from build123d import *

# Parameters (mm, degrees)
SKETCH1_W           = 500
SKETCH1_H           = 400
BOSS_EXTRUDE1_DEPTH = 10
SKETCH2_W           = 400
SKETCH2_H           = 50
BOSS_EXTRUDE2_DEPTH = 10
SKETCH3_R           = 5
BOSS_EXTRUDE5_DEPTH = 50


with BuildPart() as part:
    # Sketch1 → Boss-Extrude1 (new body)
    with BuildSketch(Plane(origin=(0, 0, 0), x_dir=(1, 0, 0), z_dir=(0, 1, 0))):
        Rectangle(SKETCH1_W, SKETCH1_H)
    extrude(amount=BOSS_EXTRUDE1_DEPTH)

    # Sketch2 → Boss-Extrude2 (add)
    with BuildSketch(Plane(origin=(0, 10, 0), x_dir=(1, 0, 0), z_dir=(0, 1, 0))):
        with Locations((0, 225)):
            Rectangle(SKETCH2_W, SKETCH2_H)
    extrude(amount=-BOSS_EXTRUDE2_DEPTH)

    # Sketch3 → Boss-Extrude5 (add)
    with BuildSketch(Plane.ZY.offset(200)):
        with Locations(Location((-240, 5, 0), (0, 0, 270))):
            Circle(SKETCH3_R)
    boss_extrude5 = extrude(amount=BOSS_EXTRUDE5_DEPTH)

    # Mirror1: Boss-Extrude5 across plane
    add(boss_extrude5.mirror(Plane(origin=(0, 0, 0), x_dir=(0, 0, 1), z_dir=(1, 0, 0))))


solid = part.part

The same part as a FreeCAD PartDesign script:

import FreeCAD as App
import Part
import Sketcher

V = App.Vector

doc = App.newDocument("Part")
body = doc.addObject("PartDesign::Body", "Body")

sketch1 = body.newObject("Sketcher::SketchObject", "Sketch")
sketch1.AttachmentSupport = (doc.getObject("XZ_Plane"), [""])
sketch1.MapMode = "FlatFace"
sketch1.addGeometry(Part.LineSegment(V(-250, -200, 0), V(-250, 200, 0)), False)
sketch1.addGeometry(Part.LineSegment(V(-250, 200, 0), V(250, 200, 0)), False)
sketch1.addGeometry(Part.LineSegment(V(250, 200, 0), V(250, -200, 0)), False)
sketch1.addGeometry(Part.LineSegment(V(250, -200, 0), V(-250, -200, 0)), False)
sketch1.addConstraint(Sketcher.Constraint("Coincident", 0, 2, 1, 1))
sketch1.addConstraint(Sketcher.Constraint("Coincident", 1, 2, 2, 1))
sketch1.addConstraint(Sketcher.Constraint("Coincident", 2, 2, 3, 1))
sketch1.addConstraint(Sketcher.Constraint("Coincident", 3, 2, 0, 1))
sketch1.addConstraint(Sketcher.Constraint("Vertical", 0))
sketch1.addConstraint(Sketcher.Constraint("Horizontal", 1))
sketch1.addConstraint(Sketcher.Constraint("Vertical", 2))
sketch1.addConstraint(Sketcher.Constraint("Horizontal", 3))
sketch1.addConstraint(Sketcher.Constraint("Symmetric", 0, 2, 2, 2, -1, 1))
sketch1.addConstraint(Sketcher.Constraint("DistanceX", 1, 1, 1, 2, 500.0))
sketch1.addConstraint(Sketcher.Constraint("DistanceY", 0, 1, 0, 2, 400.0))
pad1 = body.newObject("PartDesign::Pad", "Pad")
pad1.Profile = sketch1
pad1.Length = 10
pad1.Reversed = True

sketch2 = body.newObject("Sketcher::SketchObject", "Sketch001")
sketch2.AttachmentSupport = (doc.getObject("XZ_Plane"), [""])
sketch2.MapMode = "FlatFace"
sketch2.AttachmentOffset = App.Placement(V(0, 0, -10), App.Rotation())
sketch2.addGeometry(Part.LineSegment(V(-200, -250, 0), V(-200, -200, 0)), False)
sketch2.addGeometry(Part.LineSegment(V(-200, -200, 0), V(200, -200, 0)), False)
sketch2.addGeometry(Part.LineSegment(V(200, -200, 0), V(200, -250, 0)), False)
sketch2.addGeometry(Part.LineSegment(V(200, -250, 0), V(-200, -250, 0)), False)
sketch2.addConstraint(Sketcher.Constraint("Coincident", 0, 2, 1, 1))
sketch2.addConstraint(Sketcher.Constraint("Coincident", 1, 2, 2, 1))
sketch2.addConstraint(Sketcher.Constraint("Coincident", 2, 2, 3, 1))
sketch2.addConstraint(Sketcher.Constraint("Coincident", 3, 2, 0, 1))
sketch2.addConstraint(Sketcher.Constraint("Vertical", 0))
sketch2.addConstraint(Sketcher.Constraint("Horizontal", 1))
sketch2.addConstraint(Sketcher.Constraint("Vertical", 2))
sketch2.addConstraint(Sketcher.Constraint("Horizontal", 3))
sketch2.addConstraint(Sketcher.Constraint("DistanceX", 1, 1, 1, 2, 400.0))
sketch2.addConstraint(Sketcher.Constraint("DistanceY", 0, 1, 0, 2, 50.0))
sketch2.addConstraint(Sketcher.Constraint("DistanceX", 0, 2, -1, 1, 200.0))
sketch2.addConstraint(Sketcher.Constraint("DistanceY", 0, 2, -1, 1, 200.0))
pad2 = body.newObject("PartDesign::Pad", "Pad001")
pad2.Profile = sketch2
pad2.Length = 10

sketch3 = body.newObject("Sketcher::SketchObject", "Sketch002")
sketch3.AttachmentSupport = (doc.getObject("YZ_Plane"), [""])
sketch3.MapMode = "FlatFace"
sketch3.AttachmentOffset = App.Placement(V(0, 0, -200), App.Rotation())
sketch3.addGeometry(Part.Circle(V(5, -240, 0), V(0, 0, 1), 5), False)
sketch3.addConstraint(Sketcher.Constraint("Diameter", 0, 10.0))
sketch3.addConstraint(Sketcher.Constraint("DistanceX", -1, 1, 0, 3, 5.0))
sketch3.addConstraint(Sketcher.Constraint("DistanceY", 0, 3, -1, 1, 240.0))
pad3 = body.newObject("PartDesign::Pad", "Pad002")
pad3.Profile = sketch3
pad3.Length = 50
pad3.Reversed = True
doc.recompute()

mirrored = body.newObject("PartDesign::Mirrored", "Mirrored")
mirrored.Originals = [pad3]
mirrored.MirrorPlane = (doc.getObject("YZ_Plane"), [""])
body.Tip = mirrored

doc.recompute()
